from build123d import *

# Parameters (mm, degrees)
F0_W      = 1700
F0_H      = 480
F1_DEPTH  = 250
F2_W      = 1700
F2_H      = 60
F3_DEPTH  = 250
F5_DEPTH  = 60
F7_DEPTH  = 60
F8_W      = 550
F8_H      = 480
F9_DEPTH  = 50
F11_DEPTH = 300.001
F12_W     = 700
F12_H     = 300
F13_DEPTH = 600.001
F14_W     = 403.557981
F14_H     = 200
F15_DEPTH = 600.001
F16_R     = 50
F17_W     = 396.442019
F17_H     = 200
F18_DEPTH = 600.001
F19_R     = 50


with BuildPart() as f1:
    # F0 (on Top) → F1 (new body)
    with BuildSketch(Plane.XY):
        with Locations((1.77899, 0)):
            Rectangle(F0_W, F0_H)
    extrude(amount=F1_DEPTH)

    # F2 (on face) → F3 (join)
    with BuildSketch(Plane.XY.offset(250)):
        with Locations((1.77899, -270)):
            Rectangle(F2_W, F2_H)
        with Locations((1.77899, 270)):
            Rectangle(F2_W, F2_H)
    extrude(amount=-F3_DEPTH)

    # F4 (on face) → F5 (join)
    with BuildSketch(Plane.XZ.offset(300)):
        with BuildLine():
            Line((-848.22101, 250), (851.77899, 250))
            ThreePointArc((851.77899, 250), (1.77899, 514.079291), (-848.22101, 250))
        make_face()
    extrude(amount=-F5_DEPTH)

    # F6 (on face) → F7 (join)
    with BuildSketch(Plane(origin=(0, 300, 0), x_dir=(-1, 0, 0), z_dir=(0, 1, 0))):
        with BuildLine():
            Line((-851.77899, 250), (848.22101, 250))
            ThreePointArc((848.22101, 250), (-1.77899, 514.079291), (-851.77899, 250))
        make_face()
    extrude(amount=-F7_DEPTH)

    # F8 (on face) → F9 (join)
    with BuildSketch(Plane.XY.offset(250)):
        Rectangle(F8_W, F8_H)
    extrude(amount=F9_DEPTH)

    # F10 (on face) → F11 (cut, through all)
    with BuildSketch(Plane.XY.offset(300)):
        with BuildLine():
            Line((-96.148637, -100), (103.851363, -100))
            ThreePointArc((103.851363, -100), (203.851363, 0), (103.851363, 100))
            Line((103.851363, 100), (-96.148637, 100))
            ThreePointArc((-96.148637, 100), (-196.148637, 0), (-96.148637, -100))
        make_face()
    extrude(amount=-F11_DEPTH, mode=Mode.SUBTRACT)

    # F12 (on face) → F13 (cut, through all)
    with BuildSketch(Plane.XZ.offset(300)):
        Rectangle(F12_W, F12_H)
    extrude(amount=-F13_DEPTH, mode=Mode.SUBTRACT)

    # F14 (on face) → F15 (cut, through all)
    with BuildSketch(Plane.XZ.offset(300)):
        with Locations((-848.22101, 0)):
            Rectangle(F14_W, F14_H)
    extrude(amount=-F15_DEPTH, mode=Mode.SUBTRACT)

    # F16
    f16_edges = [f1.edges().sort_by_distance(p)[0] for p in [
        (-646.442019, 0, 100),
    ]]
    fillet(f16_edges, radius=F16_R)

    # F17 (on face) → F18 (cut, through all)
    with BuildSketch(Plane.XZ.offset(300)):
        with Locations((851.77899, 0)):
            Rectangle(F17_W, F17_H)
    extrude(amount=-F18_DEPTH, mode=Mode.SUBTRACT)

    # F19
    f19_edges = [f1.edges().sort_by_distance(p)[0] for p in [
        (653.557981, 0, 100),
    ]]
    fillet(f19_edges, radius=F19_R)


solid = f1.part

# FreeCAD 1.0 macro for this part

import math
import FreeCAD as App
import Part
import Sketcher
Q = App.Units.Quantity


def edges_at(feature, points):
    """Names of the edges that pass closest to the given points."""
    edges = feature.Shape.Edges
    near = lambda p: min(range(len(edges)), key=lambda i: edges[i].distToShape(Part.Vertex(*p))[0])
    return sorted({f"Edge{near(p) + 1}" for p in points})

doc = App.newDocument("Part")
body = doc.addObject("PartDesign::Body", "Body")

# Sketch on XY plane
sketch1 = body.newObject("Sketcher::SketchObject", "Sketch")
sketch1.AttachmentSupport = (doc.getObject("XY_Plane"), [""])
sketch1.MapMode = "FlatFace"
sketch1.addGeometry([
    Part.LineSegment(App.Vector(-848, 240, 0), App.Vector(-848, -240, 0)),
    Part.LineSegment(App.Vector(-848, -240, 0), App.Vector(852, -240, 0)),
    Part.LineSegment(App.Vector(852, -240, 0), App.Vector(852, 240, 0)),
    Part.LineSegment(App.Vector(852, 240, 0), App.Vector(-848, 240, 0)),
], False)
sketch1.addConstraint([
    Sketcher.Constraint("Coincident", 0, 2, 1, 1),
    Sketcher.Constraint("Coincident", 1, 2, 2, 1),
    Sketcher.Constraint("Coincident", 2, 2, 3, 1),
    Sketcher.Constraint("Coincident", 3, 2, 0, 1),
    Sketcher.Constraint("Vertical", 0),
    Sketcher.Constraint("Horizontal", 1),
    Sketcher.Constraint("Vertical", 2),
    Sketcher.Constraint("Horizontal", 3),
    Sketcher.Constraint("DistanceX", 1, 1, 1, 2, Q("1700 mm")),
    Sketcher.Constraint("DistanceY", 0, 2, 0, 1, Q("480 mm")),
    Sketcher.Constraint("DistanceY", 0, 2, -1, 1, Q("240 mm")),
    Sketcher.Constraint("DistanceX", 0, 2, -1, 1, Q("848.22101 mm")),
])
pad1 = body.newObject("PartDesign::Pad", "Pad")
pad1.Profile = sketch1
pad1.Length = 250

# Sketch on XY plane
sketch2 = body.newObject("Sketcher::SketchObject", "Sketch001")
sketch2.AttachmentSupport = (doc.getObject("XY_Plane"), [""])
sketch2.MapMode = "FlatFace"
sketch2.AttachmentOffset = App.Placement(App.Vector(0, 0, 250), App.Rotation())
sketch2.addGeometry([
    Part.LineSegment(App.Vector(-848, -240, 0), App.Vector(-848, -300, 0)),  # 0
    Part.LineSegment(App.Vector(-848, -300, 0), App.Vector(852, -300, 0)),  # 1
    Part.LineSegment(App.Vector(852, -300, 0), App.Vector(852, -240, 0)),  # 2
    Part.LineSegment(App.Vector(852, -240, 0), App.Vector(-848, -240, 0)),  # 3
    Part.LineSegment(App.Vector(-848, 300, 0), App.Vector(-848, 240, 0)),  # 4
    Part.LineSegment(App.Vector(-848, 240, 0), App.Vector(852, 240, 0)),  # 5
    Part.LineSegment(App.Vector(852, 240, 0), App.Vector(852, 300, 0)),  # 6
    Part.LineSegment(App.Vector(852, 300, 0), App.Vector(-848, 300, 0)),  # 7
], False)
sketch2.addConstraint([
    Sketcher.Constraint("Coincident", 0, 2, 1, 1),
    Sketcher.Constraint("Coincident", 1, 2, 2, 1),
    Sketcher.Constraint("Coincident", 2, 2, 3, 1),
    Sketcher.Constraint("Coincident", 3, 2, 0, 1),
    Sketcher.Constraint("Coincident", 4, 2, 5, 1),
    Sketcher.Constraint("Coincident", 5, 2, 6, 1),
    Sketcher.Constraint("Coincident", 6, 2, 7, 1),
    Sketcher.Constraint("Coincident", 7, 2, 4, 1),
    Sketcher.Constraint("Vertical", 0),
    Sketcher.Constraint("Horizontal", 1),
    Sketcher.Constraint("Vertical", 2),
    Sketcher.Constraint("Horizontal", 3),
    Sketcher.Constraint("Vertical", 4),
    Sketcher.Constraint("Horizontal", 5),
    Sketcher.Constraint("Vertical", 6),
    Sketcher.Constraint("Horizontal", 7),
    Sketcher.Constraint("Symmetric", 3, 2, 4, 2, -1),
    Sketcher.Constraint("Symmetric", 1, 2, 6, 2, -1),
    Sketcher.Constraint("DistanceX", 1, 1, 1, 2, Q("1700 mm")),
    Sketcher.Constraint("DistanceY", 0, 2, 0, 1, Q("60 mm")),
    Sketcher.Constraint("DistanceY", 0, 2, -1, 1, Q("300 mm")),
    Sketcher.Constraint("DistanceX", 0, 2, -1, 1, Q("848.22101 mm")),
])
pad2 = body.newObject("PartDesign::Pad", "Pad001")
pad2.Profile = sketch2
pad2.Length = 250
pad2.Reversed = True

# Sketch on XZ plane
sketch3 = body.newObject("Sketcher::SketchObject", "Sketch002")
sketch3.AttachmentSupport = (doc.getObject("XZ_Plane"), [""])
sketch3.MapMode = "FlatFace"
sketch3.AttachmentOffset = App.Placement(App.Vector(0, 0, 300), App.Rotation())
sketch3.addGeometry([
    Part.LineSegment(App.Vector(-848, 250, 0), App.Vector(852, 250, 0)),
    Part.ArcOfCircle(Part.Circle(App.Vector(2, -986, 0), App.Vector(0, 0, 1), 1500), math.radians(55), math.radians(125)),
], False)
sketch3.addConstraint([
    Sketcher.Constraint("Coincident", 0, 1, 1, 2),
    Sketcher.Constraint("Coincident", 1, 1, 0, 2),
    Sketcher.Constraint("Horizontal", 0),
    Sketcher.Constraint("DistanceX", 0, 1, 0, 2, Q("1700 mm")),
    Sketcher.Constraint("DistanceY", -1, 1, 0, 1, Q("250 mm")),
    Sketcher.Constraint("Radius", 1, Q("1499.999998 mm")),
    Sketcher.Constraint("DistanceX", -1, 1, 1, 3, Q("1.77899 mm")),
])
pad3 = body.newObject("PartDesign::Pad", "Pad002")
pad3.Profile = sketch3
pad3.Length = 60
pad3.Reversed = True

# Sketch on XZ plane
sketch4 = body.newObject("Sketcher::SketchObject", "Sketch003")
sketch4.AttachmentSupport = (doc.getObject("XZ_Plane"), [""])
sketch4.MapMode = "FlatFace"
sketch4.AttachmentOffset = App.Placement(App.Vector(0, 0, -300), App.Rotation())
sketch4.addGeometry([
    Part.LineSegment(App.Vector(852, 250, 0), App.Vector(-848, 250, 0)),
    Part.ArcOfCircle(Part.Circle(App.Vector(2, -986, 0), App.Vector(0, 0, 1), 1500), math.radians(55), math.radians(125)),
], False)
sketch4.addConstraint([
    Sketcher.Constraint("Coincident", 0, 1, 1, 1),
    Sketcher.Constraint("Coincident", 1, 2, 0, 2),
    Sketcher.Constraint("Horizontal", 0),
    Sketcher.Constraint("DistanceX", 0, 2, 0, 1, Q("1700 mm")),
    Sketcher.Constraint("DistanceY", -1, 1, 0, 1, Q("250 mm")),
    Sketcher.Constraint("Radius", 1, Q("1499.999998 mm")),
    Sketcher.Constraint("DistanceX", -1, 1, 1, 3, Q("1.77899 mm")),
])
pad4 = body.newObject("PartDesign::Pad", "Pad003")
pad4.Profile = sketch4
pad4.Length = 60

# Sketch on XY plane
sketch5 = body.newObject("Sketcher::SketchObject", "Sketch004")
sketch5.AttachmentSupport = (doc.getObject("XY_Plane"), [""])
sketch5.MapMode = "FlatFace"
sketch5.AttachmentOffset = App.Placement(App.Vector(0, 0, 250), App.Rotation())
sketch5.addGeometry([
    Part.LineSegment(App.Vector(-275, 240, 0), App.Vector(-275, -240, 0)),
    Part.LineSegment(App.Vector(-275, -240, 0), App.Vector(275, -240, 0)),
    Part.LineSegment(App.Vector(275, -240, 0), App.Vector(275, 240, 0)),
    Part.LineSegment(App.Vector(275, 240, 0), App.Vector(-275, 240, 0)),
], False)
sketch5.addConstraint([
    Sketcher.Constraint("Coincident", 0, 2, 1, 1),
    Sketcher.Constraint("Coincident", 1, 2, 2, 1),
    Sketcher.Constraint("Coincident", 2, 2, 3, 1),
    Sketcher.Constraint("Coincident", 3, 2, 0, 1),
    Sketcher.Constraint("Vertical", 0),
    Sketcher.Constraint("Horizontal", 1),
    Sketcher.Constraint("Vertical", 2),
    Sketcher.Constraint("Horizontal", 3),
    Sketcher.Constraint("Symmetric", 0, 2, 2, 2, -1, 1),
    Sketcher.Constraint("DistanceX", 1, 1, 1, 2, Q("550 mm")),
    Sketcher.Constraint("DistanceY", 0, 2, 0, 1, Q("480 mm")),
])
pad5 = body.newObject("PartDesign::Pad", "Pad004")
pad5.Profile = sketch5
pad5.Length = 50

# Sketch on XY plane
sketch6 = body.newObject("Sketcher::SketchObject", "Sketch005")
sketch6.AttachmentSupport = (doc.getObject("XY_Plane"), [""])
sketch6.MapMode = "FlatFace"
sketch6.AttachmentOffset = App.Placement(App.Vector(0, 0, 300), App.Rotation())
sketch6.addGeometry([
    Part.LineSegment(App.Vector(-96, -100, 0), App.Vector(104, -100, 0)),
    Part.ArcOfCircle(Part.Circle(App.Vector(104, 0, 0), App.Vector(0, 0, 1), 100), math.radians(-90), math.radians(90)),
    Part.LineSegment(App.Vector(104, 100, 0), App.Vector(-96, 100, 0)),
    Part.ArcOfCircle(Part.Circle(App.Vector(-96, 0, 0), App.Vector(0, 0, 1), 100), math.radians(90), math.radians(270)),
], False)
sketch6.addConstraint([
    Sketcher.Constraint("Tangent", 0, 2, 1, 1),
    Sketcher.Constraint("Tangent", 1, 2, 2, 1),
    Sketcher.Constraint("Tangent", 2, 2, 3, 1),
    Sketcher.Constraint("Tangent", 3, 2, 0, 1),
    Sketcher.Constraint("Horizontal", 0),
    Sketcher.Constraint("Horizontal", 2),
    Sketcher.Constraint("PointOnObject", 1, 3, -1),
    Sketcher.Constraint("Radius", 1, Q("100 mm")),
    Sketcher.Constraint("DistanceX", 0, 1, 0, 2, Q("200 mm")),
    Sketcher.Constraint("DistanceX", -1, 1, 1, 3, Q("103.851363 mm")),
])
pocket1 = body.newObject("PartDesign::Pocket", "Pocket")
pocket1.Profile = sketch6
pocket1.Type = "ThroughAll"

# Sketch on XZ plane
sketch7 = body.newObject("Sketcher::SketchObject", "Sketch006")
sketch7.AttachmentSupport = (doc.getObject("XZ_Plane"), [""])
sketch7.MapMode = "FlatFace"
sketch7.AttachmentOffset = App.Placement(App.Vector(0, 0, 300), App.Rotation())
sketch7.addGeometry([
    Part.LineSegment(App.Vector(-350, 150, 0), App.Vector(-350, -150, 0)),
    Part.LineSegment(App.Vector(-350, -150, 0), App.Vector(350, -150, 0)),
    Part.LineSegment(App.Vector(350, -150, 0), App.Vector(350, 150, 0)),
    Part.LineSegment(App.Vector(350, 150, 0), App.Vector(-350, 150, 0)),
], False)
sketch7.addConstraint([
    Sketcher.Constraint("Coincident", 0, 2, 1, 1),
    Sketcher.Constraint("Coincident", 1, 2, 2, 1),
    Sketcher.Constraint("Coincident", 2, 2, 3, 1),
    Sketcher.Constraint("Coincident", 3, 2, 0, 1),
    Sketcher.Constraint("Vertical", 0),
    Sketcher.Constraint("Horizontal", 1),
    Sketcher.Constraint("Vertical", 2),
    Sketcher.Constraint("Horizontal", 3),
    Sketcher.Constraint("Symmetric", 0, 2, 2, 2, -1, 1),
    Sketcher.Constraint("DistanceX", 1, 1, 1, 2, Q("700 mm")),
    Sketcher.Constraint("DistanceY", 0, 2, 0, 1, Q("300 mm")),
])
pocket2 = body.newObject("PartDesign::Pocket", "Pocket001")
pocket2.Profile = sketch7
pocket2.Type = "ThroughAll"

# Sketch on XZ plane
sketch8 = body.newObject("Sketcher::SketchObject", "Sketch007")
sketch8.AttachmentSupport = (doc.getObject("XZ_Plane"), [""])
sketch8.MapMode = "FlatFace"
sketch8.AttachmentOffset = App.Placement(App.Vector(0, 0, 300), App.Rotation())
sketch8.addGeometry([
    Part.LineSegment(App.Vector(-1050, 100, 0), App.Vector(-1050, -100, 0)),
    Part.LineSegment(App.Vector(-1050, -100, 0), App.Vector(-646, -100, 0)),
    Part.LineSegment(App.Vector(-646, -100, 0), App.Vector(-646, 100, 0)),
    Part.LineSegment(App.Vector(-646, 100, 0), App.Vector(-1050, 100, 0)),
], False)
sketch8.addConstraint([
    Sketcher.Constraint("Coincident", 0, 2, 1, 1),
    Sketcher.Constraint("Coincident", 1, 2, 2, 1),
    Sketcher.Constraint("Coincident", 2, 2, 3, 1),
    Sketcher.Constraint("Coincident", 3, 2, 0, 1),
    Sketcher.Constraint("Vertical", 0),
    Sketcher.Constraint("Horizontal", 1),
    Sketcher.Constraint("Vertical", 2),
    Sketcher.Constraint("Horizontal", 3),
    Sketcher.Constraint("DistanceY", 0, 2, 0, 1, Q("200 mm")),
    Sketcher.Constraint("DistanceX", 0, 2, -1, 1, Q("1050 mm")),
    Sketcher.Constraint("DistanceY", 0, 2, -1, 1, Q("100 mm")),
    Sketcher.Constraint("DistanceX", 1, 1, 1, 2, Q("403.557981 mm")),
])
pocket3 = body.newObject("PartDesign::Pocket", "Pocket002")
pocket3.Profile = sketch8
pocket3.Type = "ThroughAll"
doc.recompute()

fillet = body.newObject("PartDesign::Fillet", "Fillet")
fillet.Base = (pocket3, edges_at(pocket3, [(-646.442, 0, 100)]))
fillet.Radius = 50

# Sketch on XZ plane
sketch9 = body.newObject("Sketcher::SketchObject", "Sketch008")
sketch9.AttachmentSupport = (doc.getObject("XZ_Plane"), [""])
sketch9.MapMode = "FlatFace"
sketch9.AttachmentOffset = App.Placement(App.Vector(0, 0, 300), App.Rotation())
sketch9.addGeometry([
    Part.LineSegment(App.Vector(654, 100, 0), App.Vector(654, -100, 0)),
    Part.LineSegment(App.Vector(654, -100, 0), App.Vector(1050, -100, 0)),
    Part.LineSegment(App.Vector(1050, -100, 0), App.Vector(1050, 100, 0)),
    Part.LineSegment(App.Vector(1050, 100, 0), App.Vector(654, 100, 0)),
], False)
sketch9.addConstraint([
    Sketcher.Constraint("Coincident", 0, 2, 1, 1),
    Sketcher.Constraint("Coincident", 1, 2, 2, 1),
    Sketcher.Constraint("Coincident", 2, 2, 3, 1),
    Sketcher.Constraint("Coincident", 3, 2, 0, 1),
    Sketcher.Constraint("Vertical", 0),
    Sketcher.Constraint("Horizontal", 1),
    Sketcher.Constraint("Vertical", 2),
    Sketcher.Constraint("Horizontal", 3),
    Sketcher.Constraint("DistanceY", 0, 2, 0, 1, Q("200 mm")),
    Sketcher.Constraint("DistanceY", 0, 2, -1, 1, Q("100 mm")),
    Sketcher.Constraint("DistanceX", -1, 1, 1, 2, Q("1050 mm")),
    Sketcher.Constraint("DistanceX", 1, 1, 1, 2, Q("396.442019 mm")),
])
pocket4 = body.newObject("PartDesign::Pocket", "Pocket003")
pocket4.Profile = sketch9
pocket4.Type = "ThroughAll"
doc.recompute()

fillet2 = body.newObject("PartDesign::Fillet", "Fillet001")
fillet2.Base = (pocket4, edges_at(pocket4, [(653.558, 0, 100)]))
fillet2.Radius = 50

doc.recompute()
